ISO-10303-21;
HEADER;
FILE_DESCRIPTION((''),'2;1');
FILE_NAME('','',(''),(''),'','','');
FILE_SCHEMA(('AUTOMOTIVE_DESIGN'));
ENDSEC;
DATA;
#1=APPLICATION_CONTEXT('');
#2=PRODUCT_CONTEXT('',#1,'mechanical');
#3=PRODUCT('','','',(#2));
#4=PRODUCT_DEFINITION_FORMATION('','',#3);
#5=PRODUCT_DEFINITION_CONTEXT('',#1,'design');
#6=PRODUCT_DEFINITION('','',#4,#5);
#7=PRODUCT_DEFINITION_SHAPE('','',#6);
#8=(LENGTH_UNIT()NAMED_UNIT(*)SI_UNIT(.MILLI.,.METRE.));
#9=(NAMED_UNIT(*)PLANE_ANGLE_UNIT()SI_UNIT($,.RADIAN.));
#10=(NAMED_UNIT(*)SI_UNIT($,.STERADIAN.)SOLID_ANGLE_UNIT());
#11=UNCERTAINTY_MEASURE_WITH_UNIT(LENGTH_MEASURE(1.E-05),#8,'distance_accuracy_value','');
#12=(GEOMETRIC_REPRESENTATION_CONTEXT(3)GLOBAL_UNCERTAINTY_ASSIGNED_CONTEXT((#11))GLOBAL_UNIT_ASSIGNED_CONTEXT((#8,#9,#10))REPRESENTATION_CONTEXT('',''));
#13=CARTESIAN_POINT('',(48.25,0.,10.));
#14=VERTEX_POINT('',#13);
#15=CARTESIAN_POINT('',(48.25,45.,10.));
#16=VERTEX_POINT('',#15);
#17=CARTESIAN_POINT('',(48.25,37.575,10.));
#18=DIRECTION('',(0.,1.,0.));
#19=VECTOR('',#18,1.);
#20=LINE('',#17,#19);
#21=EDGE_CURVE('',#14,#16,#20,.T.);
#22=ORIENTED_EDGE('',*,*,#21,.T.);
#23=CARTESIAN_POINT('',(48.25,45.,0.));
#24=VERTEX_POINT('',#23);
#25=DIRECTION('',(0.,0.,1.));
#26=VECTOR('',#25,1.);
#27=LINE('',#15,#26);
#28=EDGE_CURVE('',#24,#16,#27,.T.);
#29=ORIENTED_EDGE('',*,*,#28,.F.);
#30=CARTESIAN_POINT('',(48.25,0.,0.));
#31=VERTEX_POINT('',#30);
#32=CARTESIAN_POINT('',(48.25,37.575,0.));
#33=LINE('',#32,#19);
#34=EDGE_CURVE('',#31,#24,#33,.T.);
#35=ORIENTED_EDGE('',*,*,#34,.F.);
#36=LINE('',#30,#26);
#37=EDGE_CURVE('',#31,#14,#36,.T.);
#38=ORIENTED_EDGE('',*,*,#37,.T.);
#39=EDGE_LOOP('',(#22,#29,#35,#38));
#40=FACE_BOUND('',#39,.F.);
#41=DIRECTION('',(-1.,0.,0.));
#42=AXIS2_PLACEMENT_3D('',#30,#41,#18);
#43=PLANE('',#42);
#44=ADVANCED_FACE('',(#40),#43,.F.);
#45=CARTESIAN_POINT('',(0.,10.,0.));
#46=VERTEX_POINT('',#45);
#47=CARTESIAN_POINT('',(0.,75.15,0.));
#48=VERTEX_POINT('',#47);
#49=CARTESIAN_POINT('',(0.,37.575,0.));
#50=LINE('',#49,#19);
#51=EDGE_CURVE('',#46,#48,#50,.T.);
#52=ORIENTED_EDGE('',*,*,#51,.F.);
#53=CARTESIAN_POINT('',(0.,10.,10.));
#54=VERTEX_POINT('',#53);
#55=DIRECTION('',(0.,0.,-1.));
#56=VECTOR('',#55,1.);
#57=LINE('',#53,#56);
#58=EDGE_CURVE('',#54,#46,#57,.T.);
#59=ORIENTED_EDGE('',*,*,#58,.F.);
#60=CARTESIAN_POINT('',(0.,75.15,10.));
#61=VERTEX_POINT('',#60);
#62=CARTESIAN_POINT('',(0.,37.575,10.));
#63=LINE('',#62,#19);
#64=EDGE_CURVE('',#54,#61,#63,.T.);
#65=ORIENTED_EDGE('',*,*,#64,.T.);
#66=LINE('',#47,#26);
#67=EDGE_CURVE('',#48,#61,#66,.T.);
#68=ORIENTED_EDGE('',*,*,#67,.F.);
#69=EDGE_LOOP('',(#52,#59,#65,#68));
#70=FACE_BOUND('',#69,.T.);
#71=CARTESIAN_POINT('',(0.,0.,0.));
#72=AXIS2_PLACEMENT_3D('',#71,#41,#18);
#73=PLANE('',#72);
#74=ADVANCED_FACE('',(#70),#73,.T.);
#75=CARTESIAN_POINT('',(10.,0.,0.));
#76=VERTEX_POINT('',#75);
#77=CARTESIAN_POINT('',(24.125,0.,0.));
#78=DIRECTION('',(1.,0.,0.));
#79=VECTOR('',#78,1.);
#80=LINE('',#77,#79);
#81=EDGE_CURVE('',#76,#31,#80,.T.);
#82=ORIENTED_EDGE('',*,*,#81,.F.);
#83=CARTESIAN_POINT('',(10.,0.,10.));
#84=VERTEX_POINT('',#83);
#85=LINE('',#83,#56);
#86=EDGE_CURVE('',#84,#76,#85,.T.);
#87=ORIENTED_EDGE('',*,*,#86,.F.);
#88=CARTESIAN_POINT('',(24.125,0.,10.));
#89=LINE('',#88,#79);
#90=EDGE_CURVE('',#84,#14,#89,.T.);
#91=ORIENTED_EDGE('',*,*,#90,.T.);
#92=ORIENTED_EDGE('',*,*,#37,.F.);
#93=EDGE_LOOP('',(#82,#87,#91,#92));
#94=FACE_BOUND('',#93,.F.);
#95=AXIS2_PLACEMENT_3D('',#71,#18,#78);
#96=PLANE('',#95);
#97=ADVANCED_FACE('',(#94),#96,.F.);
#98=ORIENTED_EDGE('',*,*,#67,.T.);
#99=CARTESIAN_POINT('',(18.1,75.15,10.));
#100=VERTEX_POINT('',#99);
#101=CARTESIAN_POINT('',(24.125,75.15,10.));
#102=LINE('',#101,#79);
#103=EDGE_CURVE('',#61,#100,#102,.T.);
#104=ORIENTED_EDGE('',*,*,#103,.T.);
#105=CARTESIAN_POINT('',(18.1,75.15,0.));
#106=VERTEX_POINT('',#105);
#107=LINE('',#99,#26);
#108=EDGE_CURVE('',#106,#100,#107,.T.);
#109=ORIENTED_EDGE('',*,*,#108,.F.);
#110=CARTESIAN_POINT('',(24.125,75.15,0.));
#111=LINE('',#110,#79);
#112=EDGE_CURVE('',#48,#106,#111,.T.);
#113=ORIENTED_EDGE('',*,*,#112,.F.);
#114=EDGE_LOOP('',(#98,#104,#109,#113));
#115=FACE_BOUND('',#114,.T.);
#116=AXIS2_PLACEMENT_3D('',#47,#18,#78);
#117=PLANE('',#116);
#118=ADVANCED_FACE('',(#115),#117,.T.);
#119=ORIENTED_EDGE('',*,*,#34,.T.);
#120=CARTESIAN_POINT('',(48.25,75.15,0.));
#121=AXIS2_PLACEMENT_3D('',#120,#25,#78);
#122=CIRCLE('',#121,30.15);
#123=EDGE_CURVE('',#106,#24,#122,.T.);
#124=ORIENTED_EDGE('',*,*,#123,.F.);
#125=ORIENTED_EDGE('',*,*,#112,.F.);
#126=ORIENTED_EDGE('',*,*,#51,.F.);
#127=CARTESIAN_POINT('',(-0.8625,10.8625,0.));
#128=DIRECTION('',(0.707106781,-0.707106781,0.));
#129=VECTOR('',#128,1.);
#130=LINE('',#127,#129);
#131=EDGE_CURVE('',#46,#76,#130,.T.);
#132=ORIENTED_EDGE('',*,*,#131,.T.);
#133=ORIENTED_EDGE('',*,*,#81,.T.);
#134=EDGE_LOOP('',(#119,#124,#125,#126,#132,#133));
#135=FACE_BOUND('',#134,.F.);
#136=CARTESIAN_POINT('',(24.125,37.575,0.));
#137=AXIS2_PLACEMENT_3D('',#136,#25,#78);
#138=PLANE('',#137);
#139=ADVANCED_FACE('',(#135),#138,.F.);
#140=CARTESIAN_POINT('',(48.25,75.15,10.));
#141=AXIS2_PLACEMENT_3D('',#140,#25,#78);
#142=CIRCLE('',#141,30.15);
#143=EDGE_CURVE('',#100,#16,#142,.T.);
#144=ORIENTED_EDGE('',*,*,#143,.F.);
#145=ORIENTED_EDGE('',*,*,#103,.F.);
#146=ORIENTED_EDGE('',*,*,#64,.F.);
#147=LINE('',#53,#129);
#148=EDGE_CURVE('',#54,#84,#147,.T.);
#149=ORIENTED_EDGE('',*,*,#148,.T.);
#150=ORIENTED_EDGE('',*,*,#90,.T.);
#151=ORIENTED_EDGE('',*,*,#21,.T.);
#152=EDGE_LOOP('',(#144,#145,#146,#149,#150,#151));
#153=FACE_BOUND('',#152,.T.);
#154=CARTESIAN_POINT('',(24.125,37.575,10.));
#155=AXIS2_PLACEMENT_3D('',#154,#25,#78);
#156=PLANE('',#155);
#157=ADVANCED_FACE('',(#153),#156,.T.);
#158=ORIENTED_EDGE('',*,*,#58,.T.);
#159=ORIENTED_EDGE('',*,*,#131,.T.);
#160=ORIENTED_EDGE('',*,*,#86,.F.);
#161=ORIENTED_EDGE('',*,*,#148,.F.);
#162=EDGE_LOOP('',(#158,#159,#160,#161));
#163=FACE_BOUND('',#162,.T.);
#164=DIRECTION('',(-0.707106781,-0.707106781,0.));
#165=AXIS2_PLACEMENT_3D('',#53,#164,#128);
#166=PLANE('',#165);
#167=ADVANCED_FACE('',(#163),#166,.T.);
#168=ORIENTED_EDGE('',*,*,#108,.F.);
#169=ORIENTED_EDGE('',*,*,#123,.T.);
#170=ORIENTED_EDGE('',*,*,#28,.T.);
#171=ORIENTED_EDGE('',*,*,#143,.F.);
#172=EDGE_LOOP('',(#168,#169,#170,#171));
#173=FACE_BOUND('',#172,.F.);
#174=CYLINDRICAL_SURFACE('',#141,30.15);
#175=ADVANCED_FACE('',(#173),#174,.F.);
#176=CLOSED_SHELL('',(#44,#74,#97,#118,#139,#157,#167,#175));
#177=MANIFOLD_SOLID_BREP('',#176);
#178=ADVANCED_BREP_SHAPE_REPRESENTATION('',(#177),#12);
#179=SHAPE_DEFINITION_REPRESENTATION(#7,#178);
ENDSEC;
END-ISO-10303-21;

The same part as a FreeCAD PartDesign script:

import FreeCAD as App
import Part
import Sketcher
from FreeCAD import Vector


def add_polygon(sketch, points):
    """Adds a closed chain of lines whose ends are joined by coincident constraints."""
    first, n = sketch.GeometryCount, len(points)
    for a, b in zip(points, points[1:] + points[:1]):
        sketch.addGeometry(Part.LineSegment(App.Vector(*a, 0), App.Vector(*b, 0)), False)
    for i in range(n):
        sketch.addConstraint(Sketcher.Constraint("Coincident", first + i, 2, first + (i + 1) % n, 1))

doc = App.newDocument("Part")
params = doc.addObject("Spreadsheet::Sheet", "Params")
for row, (alias, value) in enumerate([
    ("sketch1_width", "48.25 mm"),
    ("sketch1_height", "75.15 mm"),
    ("pad1_length", "10 mm"),
    ("sketch2_diameter", "60.3 mm"),
    ("sketch2_width", "10 mm"),
], start=1):
    params.set(f"A{row}", alias)
    params.set(f"B{row}", "=" + value)
    params.setAlias(f"B{row}", alias)

body = doc.addObject("PartDesign::Body", "Body")

# Sketch on XY plane
sketch1 = doc.addObject("Sketcher::SketchObject", "Sketch")
body.addObject(sketch1)
sketch1.AttachmentSupport = (doc.XY_Plane, [""])
sketch1.MapMode = "FlatFace"
add_polygon(sketch1, [(0, 75.15), (0, 0), (48.25, 0), (48.25, 75.15)])  # lines 0-3
sketch1.addConstraint([
    Sketcher.Constraint("Vertical", 0),
    Sketcher.Constraint("Horizontal", 1),
    Sketcher.Constraint("Vertical", 2),
    Sketcher.Constraint("Horizontal", 3),
    Sketcher.Constraint("Coincident", 0, 2, -1, 1),
    Sketcher.Constraint("DistanceX", 1, 1, 1, 2, 48.25),
    Sketcher.Constraint("DistanceY", 0, 2, 0, 1, 75.15),
])
sketch1.setExpression("Constraints[9]", "Params.sketch1_width")
sketch1.setExpression("Constraints[10]", "Params.sketch1_height")
pad1 = doc.addObject("PartDesign::Pad", "Pad")
body.addObject(pad1)
pad1.Profile = sketch1
pad1.setExpression("Length", "Params.pad1_length")

# Sketch on XY plane
sketch2 = doc.addObject("Sketcher::SketchObject", "Sketch001")
body.addObject(sketch2)
sketch2.AttachmentSupport = (doc.XY_Plane, [""])
sketch2.MapMode = "FlatFace"
sketch2.AttachmentOffset = App.Placement(Vector(0, 0, 10), App.Rotation())
sketch2.addGeometry(Part.Circle(Vector(48.25, 75.15, 0), Vector(0, 0, 1), 30.15), False)  # 0
add_polygon(sketch2, [(10, 0), (0, 10), (0, 0)])  # lines 1-3
sketch2.addConstraint([
    Sketcher.Constraint("Vertical", 2),
    Sketcher.Constraint("Horizontal", 3),
    Sketcher.Constraint("Coincident", 2, 2, -1, 1),
    Sketcher.Constraint("Equal", 3, 2),
    Sketcher.Constraint("Diameter", 0, 60.3),
    Sketcher.Constraint("DistanceX", 3, 1, 3, 2, 10.0),
    Sketcher.Constraint("DistanceX", -1, 1, 0, 3, 48.25),
    Sketcher.Constraint("DistanceY", -1, 1, 0, 3, 75.15),
])
sketch2.setExpression("Constraints[7]", "Params.sketch2_diameter")
sketch2.setExpression("Constraints[8]", "Params.sketch2_width")
pocket1 = doc.addObject("PartDesign::Pocket", "Pocket")
body.addObject(pocket1)
pocket1.Profile = sketch2
pocket1.Type = "ThroughAll"

doc.recompute()
